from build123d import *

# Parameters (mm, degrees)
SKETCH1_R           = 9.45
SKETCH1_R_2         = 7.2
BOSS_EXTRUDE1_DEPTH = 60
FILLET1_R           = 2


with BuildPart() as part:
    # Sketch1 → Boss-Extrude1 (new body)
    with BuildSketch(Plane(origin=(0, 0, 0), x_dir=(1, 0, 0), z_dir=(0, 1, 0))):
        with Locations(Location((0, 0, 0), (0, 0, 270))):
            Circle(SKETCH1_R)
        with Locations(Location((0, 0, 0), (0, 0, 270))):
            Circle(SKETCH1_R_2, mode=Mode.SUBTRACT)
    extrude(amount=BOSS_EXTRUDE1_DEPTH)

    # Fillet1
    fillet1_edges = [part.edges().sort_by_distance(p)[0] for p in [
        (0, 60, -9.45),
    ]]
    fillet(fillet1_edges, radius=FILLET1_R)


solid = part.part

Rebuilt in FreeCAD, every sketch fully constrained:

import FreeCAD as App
import Part
import Sketcher
from FreeCAD import Vector


def edges_at(feature, points):
    """Names of the edges that pass closest to the given points."""
    edges = feature.Shape.Edges
    near = lambda p: min(range(len(edges)), key=lambda i: edges[i].distToShape(Part.Vertex(*p))[0])
    return sorted({f"Edge{near(p) + 1}" for p in points})

doc = App.newDocument("Part")
params = doc.addObject("Spreadsheet::Sheet", "Params")
for row, (alias, value) in enumerate([
    ("sketch1_diameter", "18.9 mm"),
    ("sketch1_diameter2", "14.4 mm"),
    ("pad1_length", "60 mm"),
    ("fillet_radius", "2 mm"),
], start=1):
    params.set(f"A{row}", alias)
    params.set(f"B{row}", "=" + value)
    params.setAlias(f"B{row}", alias)

body = doc.addObject("PartDesign::Body", "Body")

sketch1 = body.newObject("Sketcher::SketchObject", "Sketch")
sketch1.AttachmentSupport = (doc.getObject("XZ_Plane"), [""])
sketch1.MapMode = "FlatFace"
sketch1.addGeometry([
    Part.Circle(Vector(0, 0, 0), Vector(0, 0, 1), 9.45),
    Part.Circle(Vector(0, 0, 0), Vector(0, 0, 1), 7.2),
], False)
sketch1.addConstraint([
    Sketcher.Constraint("Coincident", 0, 3, -1, 1),
    Sketcher.Constraint("Coincident", 1, 3, -1, 1),
    Sketcher.Constraint("Diameter", 0, 18.9),
    Sketcher.Constraint("Diameter", 1, 14.4),
])
sketch1.setExpression("Constraints[2]", "Params.sketch1_diameter")
sketch1.setExpression("Constraints[3]", "Params.sketch1_diameter2")
pad1 = body.newObject("PartDesign::Pad", "Pad")
pad1.Profile = sketch1
pad1.setExpression("Length", "Params.pad1_length")
pad1.Reversed = True
doc.recompute()

fillet = body.newObject("PartDesign::Fillet", "Fillet")
fillet.Base = (pad1, edges_at(pad1, [(0, 60, -9.45)]))
fillet.setExpression("Radius", "Params.fillet_radius")

doc.recompute()
